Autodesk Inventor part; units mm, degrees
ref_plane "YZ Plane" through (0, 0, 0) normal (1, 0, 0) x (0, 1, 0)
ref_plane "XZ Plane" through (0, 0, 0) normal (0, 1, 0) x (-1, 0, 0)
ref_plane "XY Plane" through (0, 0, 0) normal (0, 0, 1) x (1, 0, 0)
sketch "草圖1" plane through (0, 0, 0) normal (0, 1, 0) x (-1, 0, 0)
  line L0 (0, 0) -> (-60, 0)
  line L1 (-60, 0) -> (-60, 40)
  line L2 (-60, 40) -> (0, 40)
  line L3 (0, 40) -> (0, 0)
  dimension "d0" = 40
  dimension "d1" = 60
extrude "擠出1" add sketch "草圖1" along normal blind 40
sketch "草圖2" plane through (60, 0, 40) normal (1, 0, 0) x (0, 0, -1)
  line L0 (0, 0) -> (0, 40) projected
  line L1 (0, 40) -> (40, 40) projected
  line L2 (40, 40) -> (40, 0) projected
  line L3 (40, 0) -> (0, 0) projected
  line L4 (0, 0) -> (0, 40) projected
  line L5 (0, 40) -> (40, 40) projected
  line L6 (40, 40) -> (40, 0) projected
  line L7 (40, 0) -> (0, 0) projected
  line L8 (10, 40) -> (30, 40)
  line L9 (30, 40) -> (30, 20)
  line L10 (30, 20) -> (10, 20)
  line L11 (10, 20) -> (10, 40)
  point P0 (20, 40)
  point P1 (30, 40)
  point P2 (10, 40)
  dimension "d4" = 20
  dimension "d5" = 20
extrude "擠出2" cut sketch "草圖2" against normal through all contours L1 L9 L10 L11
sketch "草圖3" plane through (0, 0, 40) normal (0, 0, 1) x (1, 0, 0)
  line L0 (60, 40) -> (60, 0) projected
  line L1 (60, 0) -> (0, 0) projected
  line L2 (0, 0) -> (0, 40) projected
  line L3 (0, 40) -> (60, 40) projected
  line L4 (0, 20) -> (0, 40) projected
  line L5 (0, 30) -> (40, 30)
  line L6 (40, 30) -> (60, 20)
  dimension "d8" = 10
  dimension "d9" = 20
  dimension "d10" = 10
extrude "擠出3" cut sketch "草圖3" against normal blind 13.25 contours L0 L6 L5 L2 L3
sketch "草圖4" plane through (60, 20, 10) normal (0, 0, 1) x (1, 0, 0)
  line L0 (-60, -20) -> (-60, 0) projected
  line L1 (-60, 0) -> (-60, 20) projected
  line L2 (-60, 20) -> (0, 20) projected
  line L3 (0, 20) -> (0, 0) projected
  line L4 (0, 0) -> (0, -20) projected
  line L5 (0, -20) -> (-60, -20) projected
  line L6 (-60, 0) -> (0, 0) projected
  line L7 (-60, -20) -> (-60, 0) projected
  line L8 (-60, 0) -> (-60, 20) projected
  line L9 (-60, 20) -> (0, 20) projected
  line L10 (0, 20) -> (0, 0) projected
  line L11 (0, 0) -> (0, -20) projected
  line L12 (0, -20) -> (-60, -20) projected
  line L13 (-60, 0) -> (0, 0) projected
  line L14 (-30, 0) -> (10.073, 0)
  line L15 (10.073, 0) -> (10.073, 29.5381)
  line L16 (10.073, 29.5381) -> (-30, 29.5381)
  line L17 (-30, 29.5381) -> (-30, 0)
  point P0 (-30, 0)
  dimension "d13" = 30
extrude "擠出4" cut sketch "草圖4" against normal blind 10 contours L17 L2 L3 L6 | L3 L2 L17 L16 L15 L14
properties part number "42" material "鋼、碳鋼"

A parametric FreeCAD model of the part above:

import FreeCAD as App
import Part
import Sketcher

V = App.Vector

doc = App.newDocument("Part")
body = doc.addObject("PartDesign::Body", "Body")

# Sketch on XZ plane
sketch1 = body.newObject("Sketcher::SketchObject", "Sketch")
sketch1.AttachmentSupport = (doc.getObject("XZ_Plane"), [""])
sketch1.MapMode = "FlatFace"
sketch1.addGeometry([
    Part.LineSegment(V(60, 0, 0), V(0, 0, 0)),
    Part.LineSegment(V(0, 0, 0), V(0, 40, 0)),
    Part.LineSegment(V(0, 40, 0), V(60, 40, 0)),
    Part.LineSegment(V(60, 40, 0), V(60, 0, 0)),
], False)
sketch1.addConstraint([
    Sketcher.Constraint("Coincident", 0, 2, 1, 1),
    Sketcher.Constraint("Coincident", 1, 2, 2, 1),
    Sketcher.Constraint("Coincident", 2, 2, 3, 1),
    Sketcher.Constraint("Coincident", 3, 2, 0, 1),
    Sketcher.Constraint("Horizontal", 0),
    Sketcher.Constraint("Vertical", 1),
    Sketcher.Constraint("Horizontal", 2),
    Sketcher.Constraint("Vertical", 3),
    Sketcher.Constraint("Coincident", 0, 2, -1, 1),
    Sketcher.Constraint("DistanceX", 0, 2, 0, 1, 60.0),
    Sketcher.Constraint("DistanceY", 1, 1, 1, 2, 40.0),
])
pad1 = body.newObject("PartDesign::Pad", "Pad")
pad1.Profile = sketch1
pad1.Length = 40
pad1.Reversed = True

# Sketch on YZ plane
sketch2 = body.newObject("Sketcher::SketchObject", "Sketch001")
sketch2.AttachmentSupport = (doc.getObject("YZ_Plane"), [""])
sketch2.MapMode = "FlatFace"
sketch2.AttachmentOffset = App.Placement(V(0, 0, 60), App.Rotation())
sketch2.addGeometry([
    Part.LineSegment(V(40, 10, 0), V(40, 30, 0)),
    Part.LineSegment(V(40, 30, 0), V(20, 30, 0)),
    Part.LineSegment(V(20, 30, 0), V(20, 10, 0)),
    Part.LineSegment(V(20, 10, 0), V(40, 10, 0)),
], False)
sketch2.addConstraint([
    Sketcher.Constraint("Coincident", 0, 2, 1, 1),
    Sketcher.Constraint("Coincident", 1, 2, 2, 1),
    Sketcher.Constraint("Coincident", 2, 2, 3, 1),
    Sketcher.Constraint("Coincident", 3, 2, 0, 1),
    Sketcher.Constraint("Vertical", 0),
    Sketcher.Constraint("Horizontal", 1),
    Sketcher.Constraint("Vertical", 2),
    Sketcher.Constraint("Horizontal", 3),
    Sketcher.Constraint("Equal", 3, 0),
    Sketcher.Constraint("DistanceX", 1, 2, 1, 1, 20.0),
    Sketcher.Constraint("DistanceX", -1, 1, 1, 2, 20.0),
    Sketcher.Constraint("DistanceY", -1, 1, 0, 2, 30.0),
])
pocket1 = body.newObject("PartDesign::Pocket", "Pocket")
pocket1.Profile = sketch2
pocket1.Type = "ThroughAll"

# Sketch on XY plane
sketch3 = body.newObject("Sketcher::SketchObject", "Sketch002")
sketch3.AttachmentSupport = (doc.getObject("XY_Plane"), [""])
sketch3.MapMode = "FlatFace"
sketch3.AttachmentOffset = App.Placement(V(0, 0, 40), App.Rotation())
sketch3.addGeometry([
    Part.LineSegment(V(60, 20, 0), V(60, 40, 0)),  # 0
    Part.LineSegment(V(60, 40, 0), V(0, 40, 0)),  # 1
    Part.LineSegment(V(0, 40, 0), V(0, 30, 0)),  # 2
    Part.LineSegment(V(0, 30, 0), V(40, 30, 0)),  # 3
    Part.LineSegment(V(40, 30, 0), V(60, 20, 0)),  # 4
], False)
sketch3.addConstraint([
    Sketcher.Constraint("Coincident", 0, 2, 1, 1),
    Sketcher.Constraint("Coincident", 1, 2, 2, 1),
    Sketcher.Constraint("Coincident", 2, 2, 3, 1),
    Sketcher.Constraint("Coincident", 3, 2, 4, 1),
    Sketcher.Constraint("Coincident", 4, 2, 0, 1),
    Sketcher.Constraint("Vertical", 0),
    Sketcher.Constraint("Horizontal", 1),
    Sketcher.Constraint("Vertical", 2),
    Sketcher.Constraint("Horizontal", 3),
    Sketcher.Constraint("PointOnObject", 1, 2, -2),
    Sketcher.Constraint("DistanceY", 0, 1, 0, 2, 20.0),
    Sketcher.Constraint("DistanceY", 2, 2, 2, 1, 10.0),
    Sketcher.Constraint("DistanceY", -1, 1, 4, 2, 20.0),
    Sketcher.Constraint("DistanceX", 3, 2, 0, 2, 20.0),
    Sketcher.Constraint("DistanceX", 1, 2, 1, 1, 60.0),
])
pocket2 = body.newObject("PartDesign::Pocket", "Pocket001")
pocket2.Profile = sketch3
pocket2.Length = 13.25

# Sketch on XY plane
sketch4 = body.newObject("Sketcher::SketchObject", "Sketch003")
sketch4.AttachmentSupport = (doc.getObject("XY_Plane"), [""])
sketch4.MapMode = "FlatFace"
sketch4.AttachmentOffset = App.Placement(V(0, 0, 10), App.Rotation())
sketch4.addGeometry([
    Part.LineSegment(V(30, 20, 0), V(70, 20, 0)),
    Part.LineSegment(V(70, 20, 0), V(70, 50, 0)),
    Part.LineSegment(V(70, 50, 0), V(30, 50, 0)),
    Part.LineSegment(V(30, 50, 0), V(30, 20, 0)),
], False)
sketch4.addConstraint([
    Sketcher.Constraint("Coincident", 0, 2, 1, 1),
    Sketcher.Constraint("Coincident", 1, 2, 2, 1),
    Sketcher.Constraint("Coincident", 2, 2, 3, 1),
    Sketcher.Constraint("Coincident", 3, 2, 0, 1),
    Sketcher.Constraint("Horizontal", 0),
    Sketcher.Constraint("Vertical", 1),
    Sketcher.Constraint("Horizontal", 2),
    Sketcher.Constraint("Vertical", 3),
    Sketcher.Constraint("DistanceX", -1, 1, 2, 2, 30.0),
    Sketcher.Constraint("DistanceY", -1, 1, 0, 2, 20.0),
    Sketcher.Constraint("DistanceX", 0, 1, 0, 2, 40.073),
    Sketcher.Constraint("DistanceY", 1, 1, 1, 2, 29.538),
])
pocket3 = body.newObject("PartDesign::Pocket", "Pocket002")
pocket3.Profile = sketch4
pocket3.Length = 10

doc.recompute()
